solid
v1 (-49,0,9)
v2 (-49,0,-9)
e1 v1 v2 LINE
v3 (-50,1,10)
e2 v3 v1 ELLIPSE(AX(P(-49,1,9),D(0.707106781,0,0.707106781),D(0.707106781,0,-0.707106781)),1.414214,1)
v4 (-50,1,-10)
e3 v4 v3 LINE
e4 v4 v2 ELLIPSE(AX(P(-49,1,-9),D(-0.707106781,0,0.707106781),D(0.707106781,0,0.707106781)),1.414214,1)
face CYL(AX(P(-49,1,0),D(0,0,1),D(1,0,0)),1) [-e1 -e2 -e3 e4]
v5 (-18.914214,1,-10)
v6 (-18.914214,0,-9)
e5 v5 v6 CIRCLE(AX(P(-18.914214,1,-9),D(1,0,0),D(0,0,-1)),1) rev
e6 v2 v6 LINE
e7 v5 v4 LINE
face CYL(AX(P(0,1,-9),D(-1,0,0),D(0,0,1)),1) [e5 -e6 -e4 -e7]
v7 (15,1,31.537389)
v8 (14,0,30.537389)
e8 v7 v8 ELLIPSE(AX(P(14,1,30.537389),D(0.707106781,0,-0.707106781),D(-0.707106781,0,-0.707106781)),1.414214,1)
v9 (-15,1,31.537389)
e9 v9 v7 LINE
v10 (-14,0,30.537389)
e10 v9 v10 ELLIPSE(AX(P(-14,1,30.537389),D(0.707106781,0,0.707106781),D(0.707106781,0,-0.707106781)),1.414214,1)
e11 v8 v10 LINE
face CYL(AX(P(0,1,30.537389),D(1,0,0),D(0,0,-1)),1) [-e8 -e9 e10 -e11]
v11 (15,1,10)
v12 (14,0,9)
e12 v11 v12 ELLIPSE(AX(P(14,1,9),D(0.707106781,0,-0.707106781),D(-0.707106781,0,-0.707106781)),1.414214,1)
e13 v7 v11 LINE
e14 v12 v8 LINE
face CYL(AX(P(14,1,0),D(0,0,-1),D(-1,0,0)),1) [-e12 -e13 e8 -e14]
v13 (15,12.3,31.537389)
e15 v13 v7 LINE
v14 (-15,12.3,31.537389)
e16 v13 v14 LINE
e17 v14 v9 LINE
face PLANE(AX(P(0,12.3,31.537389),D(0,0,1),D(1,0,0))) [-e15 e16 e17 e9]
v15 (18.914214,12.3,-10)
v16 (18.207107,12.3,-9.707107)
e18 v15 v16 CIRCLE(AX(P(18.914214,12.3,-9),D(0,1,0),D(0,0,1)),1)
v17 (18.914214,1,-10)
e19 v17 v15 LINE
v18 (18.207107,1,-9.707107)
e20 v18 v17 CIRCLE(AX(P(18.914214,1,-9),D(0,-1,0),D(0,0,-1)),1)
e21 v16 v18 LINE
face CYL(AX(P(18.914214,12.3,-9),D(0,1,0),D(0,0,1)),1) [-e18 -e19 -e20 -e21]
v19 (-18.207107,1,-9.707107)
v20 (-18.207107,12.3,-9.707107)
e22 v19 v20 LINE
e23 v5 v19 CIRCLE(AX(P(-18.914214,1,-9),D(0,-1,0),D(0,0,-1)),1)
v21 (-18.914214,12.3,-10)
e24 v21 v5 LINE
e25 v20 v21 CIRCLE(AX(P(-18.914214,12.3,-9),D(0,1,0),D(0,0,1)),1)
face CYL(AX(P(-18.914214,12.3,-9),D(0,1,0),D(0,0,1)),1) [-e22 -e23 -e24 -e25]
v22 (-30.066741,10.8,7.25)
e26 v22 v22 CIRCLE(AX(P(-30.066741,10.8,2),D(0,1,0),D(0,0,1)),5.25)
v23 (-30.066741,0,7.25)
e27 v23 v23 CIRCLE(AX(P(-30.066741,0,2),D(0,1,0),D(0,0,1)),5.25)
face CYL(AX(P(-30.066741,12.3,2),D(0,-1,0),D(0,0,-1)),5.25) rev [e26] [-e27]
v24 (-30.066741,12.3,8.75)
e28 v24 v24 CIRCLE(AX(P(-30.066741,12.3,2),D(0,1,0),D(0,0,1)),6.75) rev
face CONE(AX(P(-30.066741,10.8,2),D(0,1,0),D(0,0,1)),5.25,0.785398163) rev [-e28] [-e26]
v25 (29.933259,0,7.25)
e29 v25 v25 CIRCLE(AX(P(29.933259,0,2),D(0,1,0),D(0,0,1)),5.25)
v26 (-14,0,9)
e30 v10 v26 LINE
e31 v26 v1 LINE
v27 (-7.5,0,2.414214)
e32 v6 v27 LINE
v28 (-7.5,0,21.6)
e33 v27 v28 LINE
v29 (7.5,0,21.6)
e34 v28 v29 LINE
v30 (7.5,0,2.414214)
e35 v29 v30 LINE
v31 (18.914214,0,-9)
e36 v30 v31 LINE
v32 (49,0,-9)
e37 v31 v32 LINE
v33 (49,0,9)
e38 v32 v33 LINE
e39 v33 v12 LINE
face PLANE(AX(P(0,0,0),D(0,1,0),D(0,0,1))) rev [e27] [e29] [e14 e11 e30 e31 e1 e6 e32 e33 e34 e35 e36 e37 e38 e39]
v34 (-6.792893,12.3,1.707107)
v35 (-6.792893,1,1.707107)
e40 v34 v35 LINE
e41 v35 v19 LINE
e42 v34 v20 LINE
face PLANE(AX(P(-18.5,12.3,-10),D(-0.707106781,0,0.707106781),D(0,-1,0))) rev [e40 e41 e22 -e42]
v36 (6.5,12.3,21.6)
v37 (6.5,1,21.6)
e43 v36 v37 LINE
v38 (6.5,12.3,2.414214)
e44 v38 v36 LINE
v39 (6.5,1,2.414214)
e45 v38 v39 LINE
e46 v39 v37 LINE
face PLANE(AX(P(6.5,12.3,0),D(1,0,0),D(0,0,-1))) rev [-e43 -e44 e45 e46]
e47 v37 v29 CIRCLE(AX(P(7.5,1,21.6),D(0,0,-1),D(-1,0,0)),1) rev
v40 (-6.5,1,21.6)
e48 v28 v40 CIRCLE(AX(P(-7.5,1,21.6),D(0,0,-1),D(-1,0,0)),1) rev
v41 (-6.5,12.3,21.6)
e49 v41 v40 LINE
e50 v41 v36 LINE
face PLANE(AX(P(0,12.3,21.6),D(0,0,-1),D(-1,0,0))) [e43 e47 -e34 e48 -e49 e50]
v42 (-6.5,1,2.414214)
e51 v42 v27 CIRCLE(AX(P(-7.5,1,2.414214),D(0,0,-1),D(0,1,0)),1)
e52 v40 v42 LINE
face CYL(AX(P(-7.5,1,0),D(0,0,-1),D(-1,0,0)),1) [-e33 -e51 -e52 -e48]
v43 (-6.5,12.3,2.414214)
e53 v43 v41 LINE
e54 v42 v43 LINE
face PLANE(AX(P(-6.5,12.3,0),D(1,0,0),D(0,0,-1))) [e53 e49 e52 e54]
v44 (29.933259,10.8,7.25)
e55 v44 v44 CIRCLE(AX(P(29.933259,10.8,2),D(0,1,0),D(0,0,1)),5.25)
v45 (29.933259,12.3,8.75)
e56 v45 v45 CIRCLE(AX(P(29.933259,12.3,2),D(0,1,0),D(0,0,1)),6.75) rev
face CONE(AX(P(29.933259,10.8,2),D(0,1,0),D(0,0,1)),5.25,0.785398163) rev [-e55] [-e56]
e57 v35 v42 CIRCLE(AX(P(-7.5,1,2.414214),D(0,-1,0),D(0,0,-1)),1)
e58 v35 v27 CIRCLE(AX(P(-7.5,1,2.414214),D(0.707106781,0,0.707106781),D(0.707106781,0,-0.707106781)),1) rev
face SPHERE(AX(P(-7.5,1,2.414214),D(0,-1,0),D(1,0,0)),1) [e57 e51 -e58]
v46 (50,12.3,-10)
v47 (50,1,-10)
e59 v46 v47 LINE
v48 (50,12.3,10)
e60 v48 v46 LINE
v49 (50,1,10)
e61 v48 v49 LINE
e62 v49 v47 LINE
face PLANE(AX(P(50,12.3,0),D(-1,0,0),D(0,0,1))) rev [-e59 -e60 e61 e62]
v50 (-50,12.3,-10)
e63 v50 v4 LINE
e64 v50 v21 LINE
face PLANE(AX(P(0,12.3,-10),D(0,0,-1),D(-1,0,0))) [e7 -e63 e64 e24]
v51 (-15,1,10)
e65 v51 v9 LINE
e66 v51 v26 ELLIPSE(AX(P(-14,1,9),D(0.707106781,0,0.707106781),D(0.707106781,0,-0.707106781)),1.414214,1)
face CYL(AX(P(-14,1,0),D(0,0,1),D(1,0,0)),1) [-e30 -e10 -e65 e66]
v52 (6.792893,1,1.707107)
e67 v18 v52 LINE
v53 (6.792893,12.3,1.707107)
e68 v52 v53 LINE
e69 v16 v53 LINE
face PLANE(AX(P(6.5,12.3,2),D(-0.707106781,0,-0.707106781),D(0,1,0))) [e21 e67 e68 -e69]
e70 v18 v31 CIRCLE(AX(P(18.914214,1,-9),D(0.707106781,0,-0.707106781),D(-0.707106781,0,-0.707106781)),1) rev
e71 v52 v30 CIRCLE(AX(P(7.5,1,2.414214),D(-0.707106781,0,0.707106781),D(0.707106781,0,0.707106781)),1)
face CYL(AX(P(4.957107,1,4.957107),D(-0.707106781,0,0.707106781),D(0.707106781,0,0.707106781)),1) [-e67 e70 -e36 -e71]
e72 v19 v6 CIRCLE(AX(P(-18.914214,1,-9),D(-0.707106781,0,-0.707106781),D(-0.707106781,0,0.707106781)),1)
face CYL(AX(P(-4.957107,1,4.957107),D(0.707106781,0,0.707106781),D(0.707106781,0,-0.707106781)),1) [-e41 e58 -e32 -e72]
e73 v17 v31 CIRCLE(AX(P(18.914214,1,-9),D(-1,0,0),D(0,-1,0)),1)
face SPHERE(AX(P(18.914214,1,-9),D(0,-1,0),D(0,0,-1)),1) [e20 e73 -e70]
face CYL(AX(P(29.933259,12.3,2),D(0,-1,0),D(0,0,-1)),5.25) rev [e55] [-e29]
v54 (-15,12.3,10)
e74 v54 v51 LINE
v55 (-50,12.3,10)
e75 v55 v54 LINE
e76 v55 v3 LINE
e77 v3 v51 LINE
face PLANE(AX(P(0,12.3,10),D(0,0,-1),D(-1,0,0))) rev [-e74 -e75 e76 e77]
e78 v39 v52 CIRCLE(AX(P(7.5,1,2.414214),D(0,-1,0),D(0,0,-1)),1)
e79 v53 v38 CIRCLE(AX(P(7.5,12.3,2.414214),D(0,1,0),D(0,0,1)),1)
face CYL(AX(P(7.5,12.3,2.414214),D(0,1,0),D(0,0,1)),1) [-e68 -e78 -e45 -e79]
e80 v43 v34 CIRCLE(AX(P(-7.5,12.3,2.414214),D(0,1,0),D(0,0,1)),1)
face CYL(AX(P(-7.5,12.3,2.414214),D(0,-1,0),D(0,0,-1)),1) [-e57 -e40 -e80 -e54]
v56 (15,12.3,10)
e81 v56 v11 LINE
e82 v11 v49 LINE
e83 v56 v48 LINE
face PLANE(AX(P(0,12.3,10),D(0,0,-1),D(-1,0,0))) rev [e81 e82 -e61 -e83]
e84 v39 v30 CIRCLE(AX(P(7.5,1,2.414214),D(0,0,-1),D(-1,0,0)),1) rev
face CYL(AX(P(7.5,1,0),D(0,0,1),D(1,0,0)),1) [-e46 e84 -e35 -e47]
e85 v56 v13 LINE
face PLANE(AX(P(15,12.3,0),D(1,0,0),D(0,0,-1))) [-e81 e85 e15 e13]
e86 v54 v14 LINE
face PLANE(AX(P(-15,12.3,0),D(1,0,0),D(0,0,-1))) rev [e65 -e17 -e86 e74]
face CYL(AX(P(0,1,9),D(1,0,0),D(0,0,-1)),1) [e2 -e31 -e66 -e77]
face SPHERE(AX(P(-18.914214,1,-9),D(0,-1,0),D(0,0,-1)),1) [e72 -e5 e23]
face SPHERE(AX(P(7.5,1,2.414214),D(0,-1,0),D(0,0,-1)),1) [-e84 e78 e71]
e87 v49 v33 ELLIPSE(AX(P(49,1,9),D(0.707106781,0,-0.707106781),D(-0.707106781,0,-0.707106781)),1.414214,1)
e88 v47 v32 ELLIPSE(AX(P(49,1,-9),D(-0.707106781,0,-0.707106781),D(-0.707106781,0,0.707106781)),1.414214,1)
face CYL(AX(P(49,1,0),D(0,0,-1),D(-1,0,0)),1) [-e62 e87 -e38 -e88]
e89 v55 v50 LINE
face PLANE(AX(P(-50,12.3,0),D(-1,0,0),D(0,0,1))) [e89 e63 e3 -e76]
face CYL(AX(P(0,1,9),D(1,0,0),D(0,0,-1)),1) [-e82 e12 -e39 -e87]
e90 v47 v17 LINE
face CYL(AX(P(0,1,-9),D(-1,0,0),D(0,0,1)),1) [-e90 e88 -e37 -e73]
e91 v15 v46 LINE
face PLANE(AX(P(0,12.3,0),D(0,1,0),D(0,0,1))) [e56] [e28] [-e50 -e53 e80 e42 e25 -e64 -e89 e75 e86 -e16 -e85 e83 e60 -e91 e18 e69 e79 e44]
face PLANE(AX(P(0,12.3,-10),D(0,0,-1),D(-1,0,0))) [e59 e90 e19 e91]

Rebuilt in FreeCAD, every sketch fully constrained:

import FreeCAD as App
import Part
import Sketcher
from FreeCAD import Vector
Q = App.Units.Quantity


def edges_at(feature, points):
    """Names of the edges that pass closest to the given points."""
    edges = feature.Shape.Edges
    near = lambda p: min(range(len(edges)), key=lambda i: edges[i].distToShape(Part.Vertex(*p))[0])
    return sorted({f"Edge{near(p) + 1}" for p in points})


def add_polygon(sketch, points):
    """Adds a closed chain of lines whose ends are joined by coincident constraints."""
    first, n = sketch.GeometryCount, len(points)
    for a, b in zip(points, points[1:] + points[:1]):
        sketch.addGeometry(Part.LineSegment(App.Vector(*a, 0), App.Vector(*b, 0)), False)
    for i in range(n):
        sketch.addConstraint(Sketcher.Constraint("Coincident", first + i, 2, first + (i + 1) % n, 1))

doc = App.newDocument("Part")
body = doc.addObject("PartDesign::Body", "Body")

# Sketch on XZ plane
sketch1 = body.newObject("Sketcher::SketchObject", "Sketch")
sketch1.AttachmentSupport = (doc.getObject("XZ_Plane"), [""])
sketch1.MapMode = "FlatFace"
add_polygon(sketch1, [(-50, -10), (-50, 10), (-15, 10), (-15, 32), (15, 32), (15, 10), (50, 10), (50, -10), (6, -10), (6, 22), (-6, 22), (-6, -10)])  # lines 0-11
sketch1.addGeometry(Part.Circle(Vector(-30, 2, 0), Vector(0, 0, 1), 5), False)  # 12
sketch1.addGeometry(Part.Circle(Vector(30, 2, 0), Vector(0, 0, 1), 5), False)  # 13
sketch1.addConstraint([
    Sketcher.Constraint("Vertical", 0),
    Sketcher.Constraint("Horizontal", 1),
    Sketcher.Constraint("Vertical", 2),
    Sketcher.Constraint("Horizontal", 3),
    Sketcher.Constraint("Vertical", 4),
    Sketcher.Constraint("Horizontal", 5),
    Sketcher.Constraint("Vertical", 6),
    Sketcher.Constraint("Horizontal", 7),
    Sketcher.Constraint("Vertical", 8),
    Sketcher.Constraint("Horizontal", 9),
    Sketcher.Constraint("Vertical", 10),
    Sketcher.Constraint("Horizontal", 11),
    Sketcher.Constraint("Equal", 12, 13),
    Sketcher.Constraint("Symmetric", 0, 2, 6, 2, -1, 1),
    Sketcher.Constraint("Symmetric", 1, 2, 4, 2, -2),
    Sketcher.Constraint("Symmetric", 7, 2, 10, 2, -2),
    Sketcher.Constraint("Horizontal", 12, 3, 13, 3),
    Sketcher.Constraint("Diameter", 12, Q("10.5 mm")),
    Sketcher.Constraint("DistanceX", 1, 1, 1, 2, Q("35 mm")),
    Sketcher.Constraint("DistanceX", 3, 1, 3, 2, Q("30 mm")),
    Sketcher.Constraint("DistanceX", 9, 2, 9, 1, Q("13 mm")),
    Sketcher.Constraint("DistanceY", 0, 1, 0, 2, Q("20 mm")),
    Sketcher.Constraint("DistanceY", 8, 1, 8, 2, Q("31.6 mm")),
    Sketcher.Constraint("DistanceY", -1, 1, 12, 3, Q("2 mm")),
    Sketcher.Constraint("DistanceX", 12, 3, 13, 3, Q("60 mm")),
    Sketcher.Constraint("DistanceY", 2, 1, 2, 2, Q("21.537389 mm")),
    Sketcher.Constraint("DistanceX", 12, 3, -1, 1, Q("30.066741 mm")),
])
pad1 = body.newObject("PartDesign::Pad", "Pad")
pad1.Profile = sketch1
pad1.Length = 12.3
pad1.Reversed = True
doc.recompute()

chamfer = body.newObject("PartDesign::Chamfer", "Chamfer")
chamfer.Base = (pad1, edges_at(pad1, [(-35.317, 12.3, 2), (24.683, 12.3, 2)]))
chamfer.Size = 1.5
doc.recompute()

chamfer2 = body.newObject("PartDesign::Chamfer", "Chamfer001")
chamfer2.Base = (chamfer, edges_at(chamfer, [(6.5, 6.15, -10), (-6.5, 6.15, -10)]))
chamfer2.Size = 12
doc.recompute()

fillet = body.newObject("PartDesign::Fillet", "Fillet")
fillet.Base = (chamfer2, edges_at(chamfer2, [
    (50, 0, 0),
    (32.5, 0, 10),
    (15, 0, 20.769),
    (0, 0, 31.537),
    (-15, 0, 20.769),
    (-32.5, 0, 10),
    (-50, 0, 0),
    (-34.25, 0, -10),
    (-18.5, 6.15, -10),
    (-6.5, 0, 11.8),
    (6.5, 0, 11.8),
    (34.25, 0, -10),
    (12.5, 0, -4),
    (-12.5, 0, -4),
    (-6.5, 6.15, 2),
    (6.5, 6.15, 2),
    (18.5, 6.15, -10),
]))
fillet.Radius = 1

doc.recompute()
